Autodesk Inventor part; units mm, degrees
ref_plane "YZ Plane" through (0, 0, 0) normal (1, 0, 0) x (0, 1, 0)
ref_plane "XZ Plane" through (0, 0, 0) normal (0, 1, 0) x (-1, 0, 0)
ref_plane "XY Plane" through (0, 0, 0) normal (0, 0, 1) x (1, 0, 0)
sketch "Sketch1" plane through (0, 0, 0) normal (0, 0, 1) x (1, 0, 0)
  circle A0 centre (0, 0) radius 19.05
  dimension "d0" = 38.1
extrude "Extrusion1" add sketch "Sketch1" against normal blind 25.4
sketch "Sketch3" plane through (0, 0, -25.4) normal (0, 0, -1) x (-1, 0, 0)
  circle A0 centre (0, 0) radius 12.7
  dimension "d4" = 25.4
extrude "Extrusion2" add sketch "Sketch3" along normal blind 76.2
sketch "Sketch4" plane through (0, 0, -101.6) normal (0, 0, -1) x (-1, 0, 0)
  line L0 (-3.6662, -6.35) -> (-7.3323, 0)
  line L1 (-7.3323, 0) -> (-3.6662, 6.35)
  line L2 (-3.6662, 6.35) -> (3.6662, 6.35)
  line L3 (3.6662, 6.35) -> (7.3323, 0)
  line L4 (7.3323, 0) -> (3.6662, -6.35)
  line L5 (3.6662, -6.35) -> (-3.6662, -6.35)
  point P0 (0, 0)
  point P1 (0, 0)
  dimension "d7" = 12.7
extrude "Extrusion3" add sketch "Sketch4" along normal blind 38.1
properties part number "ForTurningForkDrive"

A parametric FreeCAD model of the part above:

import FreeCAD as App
import Part
import Sketcher
Q = App.Units.Quantity


def add_polygon(sketch, points):
    """Adds a closed chain of lines whose ends are joined by coincident constraints."""
    first, n = sketch.GeometryCount, len(points)
    for a, b in zip(points, points[1:] + points[:1]):
        sketch.addGeometry(Part.LineSegment(App.Vector(*a, 0), App.Vector(*b, 0)), False)
    for i in range(n):
        sketch.addConstraint(Sketcher.Constraint("Coincident", first + i, 2, first + (i + 1) % n, 1))

doc = App.newDocument("Part")
body = doc.addObject("PartDesign::Body", "Body")

# Sketch on XY plane
sketch1 = body.newObject("Sketcher::SketchObject", "Sketch")
sketch1.AttachmentSupport = (doc.getObject("XY_Plane"), [""])
sketch1.MapMode = "FlatFace"
sketch1.addGeometry(Part.Circle(App.Vector(0, 0, 0), App.Vector(0, 0, 1), 19.05), False)
sketch1.addConstraint([
    Sketcher.Constraint("Coincident", 0, 3, -1, 1),
    Sketcher.Constraint("Diameter", 0, Q("1.5 in")),
])
pad1 = body.newObject("PartDesign::Pad", "Pad")
pad1.Profile = sketch1
pad1.Length = Q("1 in")
pad1.Reversed = True

# Sketch on XY plane
sketch2 = body.newObject("Sketcher::SketchObject", "Sketch001")
sketch2.AttachmentSupport = (doc.getObject("XY_Plane"), [""])
sketch2.MapMode = "FlatFace"
sketch2.AttachmentOffset = App.Placement(App.Vector(0, 0, -1 * 25.4), App.Rotation())
sketch2.addGeometry(Part.Circle(App.Vector(0, 0, 0), App.Vector(0, 0, 1), 12.7), False)
sketch2.addConstraint([
    Sketcher.Constraint("Coincident", 0, 3, -1, 1),
    Sketcher.Constraint("Diameter", 0, Q("1 in")),
])
pad2 = body.newObject("PartDesign::Pad", "Pad001")
pad2.Profile = sketch2
pad2.Length = Q("3 in")
pad2.Reversed = True

# Sketch on XY plane
sketch3 = body.newObject("Sketcher::SketchObject", "Sketch002")
sketch3.AttachmentSupport = (doc.getObject("XY_Plane"), [""])
sketch3.MapMode = "FlatFace"
sketch3.AttachmentOffset = App.Placement(App.Vector(0, 0, -4 * 25.4), App.Rotation())
add_polygon(sketch3, [(7.3323, 0), (3.6662, -6.35), (-3.6662, -6.35), (-7.3323, 0), (-3.6662, 6.35), (3.6662, 6.35)])  # lines 0-5
sketch3.addConstraint([
    Sketcher.Constraint("Horizontal", 1),
    Sketcher.Constraint("Horizontal", 4),
    Sketcher.Constraint("Symmetric", 0, 2, 3, 2, -1, 1),
    Sketcher.Constraint("Symmetric", 2, 2, 5, 2, -1, 1),
    Sketcher.Constraint("PointOnObject", 2, 2, -1),
    Sketcher.Constraint("Parallel", 2, 5),
    Sketcher.Constraint("Vertical", 1, 2, 3, 2),
    Sketcher.Constraint("DistanceY", 1, 2, 3, 2, Q("0.5 in")),
    Sketcher.Constraint("Angle", 0, Q("-119.9995 deg")),
    Sketcher.Constraint("DistanceX", 2, 2, 0, 2, Q("0.433 in")),
])
pad3 = body.newObject("PartDesign::Pad", "Pad002")
pad3.Profile = sketch3
pad3.Length = Q("1.5 in")
pad3.Reversed = True

doc.recompute()
